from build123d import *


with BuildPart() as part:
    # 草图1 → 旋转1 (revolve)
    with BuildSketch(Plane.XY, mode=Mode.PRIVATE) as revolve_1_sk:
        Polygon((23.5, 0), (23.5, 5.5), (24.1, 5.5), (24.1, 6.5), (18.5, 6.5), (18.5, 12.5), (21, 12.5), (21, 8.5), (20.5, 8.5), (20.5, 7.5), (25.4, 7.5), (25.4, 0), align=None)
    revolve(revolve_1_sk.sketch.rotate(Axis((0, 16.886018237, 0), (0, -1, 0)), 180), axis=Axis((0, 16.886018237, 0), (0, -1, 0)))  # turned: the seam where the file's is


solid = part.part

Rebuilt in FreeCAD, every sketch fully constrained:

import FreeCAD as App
import Part
import Sketcher
Q = App.Units.Quantity

doc = App.newDocument("Part")
body = doc.addObject("PartDesign::Body", "Body")

sketch1 = body.newObject("Sketcher::SketchObject", "Sketch")
sketch1.AttachmentSupport = (doc.getObject("XY_Plane"), [""])
sketch1.MapMode = "FlatFace"
sketch1.addGeometry([
    Part.LineSegment(App.Vector(23.5, 5.5, 0), App.Vector(23.5, 0, 0)),
    Part.LineSegment(App.Vector(23.5, 0, 0), App.Vector(25.4, 0, 0)),
    Part.LineSegment(App.Vector(25.4, 0, 0), App.Vector(25.4, 7.5, 0)),
    Part.LineSegment(App.Vector(25.4, 7.5, 0), App.Vector(20.5, 7.5, 0)),
    Part.LineSegment(App.Vector(20.5, 7.5, 0), App.Vector(20.5, 8.5, 0)),
    Part.LineSegment(App.Vector(20.5, 8.5, 0), App.Vector(21, 8.5, 0)),
    Part.LineSegment(App.Vector(21, 8.5, 0), App.Vector(21, 12.5, 0)),
    Part.LineSegment(App.Vector(21, 12.5, 0), App.Vector(18.5, 12.5, 0)),
    Part.LineSegment(App.Vector(18.5, 12.5, 0), App.Vector(18.5, 6.5, 0)),
    Part.LineSegment(App.Vector(18.5, 6.5, 0), App.Vector(24.1, 6.5, 0)),
    Part.LineSegment(App.Vector(24.1, 6.5, 0), App.Vector(24.1, 5.5, 0)),
    Part.LineSegment(App.Vector(24.1, 5.5, 0), App.Vector(23.5, 5.5, 0)),
], False)
sketch1.addConstraint([
    Sketcher.Constraint("Coincident", 0, 2, 1, 1),
    Sketcher.Constraint("Coincident", 1, 2, 2, 1),
    Sketcher.Constraint("Coincident", 2, 2, 3, 1),
    Sketcher.Constraint("Coincident", 3, 2, 4, 1),
    Sketcher.Constraint("Coincident", 4, 2, 5, 1),
    Sketcher.Constraint("Coincident", 5, 2, 6, 1),
    Sketcher.Constraint("Coincident", 6, 2, 7, 1),
    Sketcher.Constraint("Coincident", 7, 2, 8, 1),
    Sketcher.Constraint("Coincident", 8, 2, 9, 1),
    Sketcher.Constraint("Coincident", 9, 2, 10, 1),
    Sketcher.Constraint("Coincident", 10, 2, 11, 1),
    Sketcher.Constraint("Coincident", 11, 2, 0, 1),
    Sketcher.Constraint("Vertical", 0),
    Sketcher.Constraint("Horizontal", 1),
    Sketcher.Constraint("Vertical", 2),
    Sketcher.Constraint("Horizontal", 3),
    Sketcher.Constraint("Vertical", 4),
    Sketcher.Constraint("Horizontal", 5),
    Sketcher.Constraint("Vertical", 6),
    Sketcher.Constraint("Horizontal", 7),
    Sketcher.Constraint("Vertical", 8),
    Sketcher.Constraint("Horizontal", 9),
    Sketcher.Constraint("Vertical", 10),
    Sketcher.Constraint("Horizontal", 11),
    Sketcher.Constraint("PointOnObject", 0, 2, -1),
    Sketcher.Constraint("Equal", 4, 10),
    Sketcher.Constraint("DistanceY", 4, 1, 4, 2, Q("1 mm")),
    Sketcher.Constraint("DistanceY", 6, 1, 6, 2, Q("4 mm")),
    Sketcher.Constraint("DistanceY", 8, 2, 8, 1, Q("6 mm")),
    Sketcher.Constraint("DistanceX", 1, 1, 1, 2, Q("1.9 mm")),
    Sketcher.Constraint("DistanceX", 3, 2, 3, 1, Q("4.9 mm")),
    Sketcher.Constraint("DistanceX", 5, 1, 5, 2, Q("0.5 mm")),
    Sketcher.Constraint("DistanceX", 7, 2, 7, 1, Q("2.5 mm")),
    Sketcher.Constraint("DistanceX", 9, 1, 9, 2, Q("5.6 mm")),
    Sketcher.Constraint("DistanceY", 0, 2, 0, 1, Q("5.5 mm")),
    Sketcher.Constraint("DistanceX", -1, 1, 5, 2, Q("21 mm")),
])
revolution = body.newObject("PartDesign::Revolution", "Revolution")
revolution.Profile = sketch1
revolution.ReferenceAxis = (sketch1, ["V_Axis"])
revolution.Angle = 360

doc.recompute()
